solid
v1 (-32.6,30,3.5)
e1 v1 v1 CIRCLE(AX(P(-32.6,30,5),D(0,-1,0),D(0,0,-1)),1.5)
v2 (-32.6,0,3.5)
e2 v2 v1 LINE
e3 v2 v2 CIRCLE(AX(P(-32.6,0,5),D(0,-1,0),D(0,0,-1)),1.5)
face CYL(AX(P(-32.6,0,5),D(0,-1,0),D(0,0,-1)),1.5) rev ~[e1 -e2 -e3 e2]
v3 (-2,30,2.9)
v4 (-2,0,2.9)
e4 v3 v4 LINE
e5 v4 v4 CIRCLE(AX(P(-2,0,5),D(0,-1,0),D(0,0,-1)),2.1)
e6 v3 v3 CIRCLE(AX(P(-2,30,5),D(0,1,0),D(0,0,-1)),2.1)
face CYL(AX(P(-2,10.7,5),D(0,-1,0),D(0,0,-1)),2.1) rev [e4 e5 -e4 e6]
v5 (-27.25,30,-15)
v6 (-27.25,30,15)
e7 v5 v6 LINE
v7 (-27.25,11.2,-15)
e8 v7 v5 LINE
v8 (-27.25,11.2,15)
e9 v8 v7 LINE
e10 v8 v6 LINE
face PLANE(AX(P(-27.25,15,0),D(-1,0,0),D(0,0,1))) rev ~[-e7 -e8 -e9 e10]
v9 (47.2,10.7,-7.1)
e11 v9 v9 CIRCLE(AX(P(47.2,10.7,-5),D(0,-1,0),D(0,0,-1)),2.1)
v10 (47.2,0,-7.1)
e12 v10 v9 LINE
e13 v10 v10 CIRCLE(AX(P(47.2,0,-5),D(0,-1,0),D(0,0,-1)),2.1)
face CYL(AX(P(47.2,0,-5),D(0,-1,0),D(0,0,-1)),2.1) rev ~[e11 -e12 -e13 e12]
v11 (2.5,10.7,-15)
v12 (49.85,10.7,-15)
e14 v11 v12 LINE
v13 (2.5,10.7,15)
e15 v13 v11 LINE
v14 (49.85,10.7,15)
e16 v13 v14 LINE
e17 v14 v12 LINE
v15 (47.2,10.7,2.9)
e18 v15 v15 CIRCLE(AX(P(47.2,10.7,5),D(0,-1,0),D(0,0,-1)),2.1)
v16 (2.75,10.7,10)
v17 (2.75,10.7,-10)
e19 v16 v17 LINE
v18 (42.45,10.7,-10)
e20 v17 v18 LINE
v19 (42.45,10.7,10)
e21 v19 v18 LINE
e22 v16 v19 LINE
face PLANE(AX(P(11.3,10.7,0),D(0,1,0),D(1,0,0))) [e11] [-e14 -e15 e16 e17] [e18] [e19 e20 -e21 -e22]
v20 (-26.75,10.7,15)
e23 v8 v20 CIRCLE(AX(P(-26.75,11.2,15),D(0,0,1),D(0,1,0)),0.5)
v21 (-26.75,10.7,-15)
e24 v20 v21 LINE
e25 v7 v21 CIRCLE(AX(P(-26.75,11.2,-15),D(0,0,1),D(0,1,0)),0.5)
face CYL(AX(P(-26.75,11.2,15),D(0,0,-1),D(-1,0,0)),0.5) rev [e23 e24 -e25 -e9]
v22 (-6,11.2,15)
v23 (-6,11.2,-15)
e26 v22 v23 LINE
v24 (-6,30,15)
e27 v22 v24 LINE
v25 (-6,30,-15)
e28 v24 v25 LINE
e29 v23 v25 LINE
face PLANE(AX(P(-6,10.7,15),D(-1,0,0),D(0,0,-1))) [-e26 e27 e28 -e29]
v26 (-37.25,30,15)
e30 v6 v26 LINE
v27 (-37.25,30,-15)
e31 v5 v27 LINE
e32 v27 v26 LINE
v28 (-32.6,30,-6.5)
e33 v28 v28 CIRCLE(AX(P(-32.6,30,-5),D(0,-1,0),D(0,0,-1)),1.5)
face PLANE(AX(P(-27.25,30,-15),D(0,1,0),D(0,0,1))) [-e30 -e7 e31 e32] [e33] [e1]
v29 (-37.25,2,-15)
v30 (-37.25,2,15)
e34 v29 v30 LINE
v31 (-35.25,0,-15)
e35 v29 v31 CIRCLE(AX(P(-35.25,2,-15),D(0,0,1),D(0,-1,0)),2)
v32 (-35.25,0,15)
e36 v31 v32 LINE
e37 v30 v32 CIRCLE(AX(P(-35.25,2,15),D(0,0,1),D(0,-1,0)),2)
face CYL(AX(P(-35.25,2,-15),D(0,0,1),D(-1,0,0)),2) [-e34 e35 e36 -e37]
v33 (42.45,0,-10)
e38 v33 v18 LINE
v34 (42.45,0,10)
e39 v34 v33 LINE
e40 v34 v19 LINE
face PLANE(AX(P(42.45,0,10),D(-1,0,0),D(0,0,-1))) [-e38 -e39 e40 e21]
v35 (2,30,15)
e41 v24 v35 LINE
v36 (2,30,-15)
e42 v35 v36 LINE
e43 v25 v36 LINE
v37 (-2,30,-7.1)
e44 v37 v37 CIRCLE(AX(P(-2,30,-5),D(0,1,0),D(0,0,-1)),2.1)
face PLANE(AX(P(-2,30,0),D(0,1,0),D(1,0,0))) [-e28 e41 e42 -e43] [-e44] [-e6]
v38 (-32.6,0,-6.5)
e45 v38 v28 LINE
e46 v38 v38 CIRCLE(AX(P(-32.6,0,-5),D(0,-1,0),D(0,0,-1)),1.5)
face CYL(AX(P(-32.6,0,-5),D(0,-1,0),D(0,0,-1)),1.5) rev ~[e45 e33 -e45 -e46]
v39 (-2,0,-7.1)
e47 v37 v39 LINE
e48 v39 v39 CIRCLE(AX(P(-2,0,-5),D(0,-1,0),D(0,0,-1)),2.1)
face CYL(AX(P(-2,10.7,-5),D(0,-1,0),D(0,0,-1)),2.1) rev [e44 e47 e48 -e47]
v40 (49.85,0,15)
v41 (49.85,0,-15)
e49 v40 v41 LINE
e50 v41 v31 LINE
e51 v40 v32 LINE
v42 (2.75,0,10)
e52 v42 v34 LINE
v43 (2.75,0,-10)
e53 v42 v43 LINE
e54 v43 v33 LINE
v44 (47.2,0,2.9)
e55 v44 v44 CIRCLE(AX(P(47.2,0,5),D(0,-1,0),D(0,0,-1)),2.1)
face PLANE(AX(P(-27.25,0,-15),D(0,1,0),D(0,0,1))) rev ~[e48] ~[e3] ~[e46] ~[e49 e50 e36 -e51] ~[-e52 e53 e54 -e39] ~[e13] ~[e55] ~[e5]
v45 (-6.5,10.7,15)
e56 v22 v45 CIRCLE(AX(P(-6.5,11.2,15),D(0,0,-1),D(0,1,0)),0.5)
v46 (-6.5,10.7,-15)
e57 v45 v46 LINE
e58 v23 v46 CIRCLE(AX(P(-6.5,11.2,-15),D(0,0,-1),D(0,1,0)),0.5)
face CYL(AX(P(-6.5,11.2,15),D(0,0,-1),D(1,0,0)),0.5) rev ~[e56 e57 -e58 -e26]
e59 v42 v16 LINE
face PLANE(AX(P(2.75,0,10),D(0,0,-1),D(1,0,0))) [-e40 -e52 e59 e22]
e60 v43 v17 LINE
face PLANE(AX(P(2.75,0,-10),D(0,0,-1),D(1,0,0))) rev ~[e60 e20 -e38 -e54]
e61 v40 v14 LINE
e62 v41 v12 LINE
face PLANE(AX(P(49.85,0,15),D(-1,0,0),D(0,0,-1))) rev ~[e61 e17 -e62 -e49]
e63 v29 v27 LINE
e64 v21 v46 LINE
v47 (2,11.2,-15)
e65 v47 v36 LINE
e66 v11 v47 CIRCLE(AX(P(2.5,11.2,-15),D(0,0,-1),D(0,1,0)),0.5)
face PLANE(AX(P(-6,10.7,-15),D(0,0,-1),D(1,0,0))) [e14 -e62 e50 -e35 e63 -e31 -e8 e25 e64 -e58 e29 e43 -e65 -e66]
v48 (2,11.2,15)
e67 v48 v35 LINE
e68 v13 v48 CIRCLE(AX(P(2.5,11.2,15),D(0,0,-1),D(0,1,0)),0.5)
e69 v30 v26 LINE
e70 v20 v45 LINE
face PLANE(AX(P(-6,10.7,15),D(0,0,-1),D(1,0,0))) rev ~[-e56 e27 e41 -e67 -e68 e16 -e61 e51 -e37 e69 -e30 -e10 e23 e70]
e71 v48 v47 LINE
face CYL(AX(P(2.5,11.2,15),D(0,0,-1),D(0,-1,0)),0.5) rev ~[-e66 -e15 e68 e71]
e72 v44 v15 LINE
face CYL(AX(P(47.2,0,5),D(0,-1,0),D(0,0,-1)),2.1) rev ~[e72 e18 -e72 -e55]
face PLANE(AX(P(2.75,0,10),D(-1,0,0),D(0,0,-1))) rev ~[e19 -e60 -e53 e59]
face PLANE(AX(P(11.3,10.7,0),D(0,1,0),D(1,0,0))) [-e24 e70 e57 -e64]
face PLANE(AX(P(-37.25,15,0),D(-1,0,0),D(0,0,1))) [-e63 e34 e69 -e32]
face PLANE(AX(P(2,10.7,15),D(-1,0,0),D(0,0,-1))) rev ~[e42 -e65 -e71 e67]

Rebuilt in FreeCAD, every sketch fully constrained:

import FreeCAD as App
import Part
import Sketcher
Q = App.Units.Quantity


def edges_at(feature, points):
    """Names of the edges that pass closest to the given points."""
    edges = feature.Shape.Edges
    near = lambda p: min(range(len(edges)), key=lambda i: edges[i].distToShape(Part.Vertex(*p))[0])
    return sorted({f"Edge{near(p) + 1}" for p in points})

doc = App.newDocument("Part")
body = doc.addObject("PartDesign::Body", "Body")

# Sketch on XZ plane
sketch1 = body.newObject("Sketcher::SketchObject", "Sketch")
sketch1.AttachmentSupport = (doc.getObject("XZ_Plane"), [""])
sketch1.MapMode = "FlatFace"
sketch1.addGeometry(Part.LineSegment(App.Vector(-27, -15, 0), App.Vector(-27, 15, 0)), False)
sketch1.addGeometry(Part.LineSegment(App.Vector(-27, 15, 0), App.Vector(50, 15, 0)), False)
sketch1.addGeometry(Part.LineSegment(App.Vector(50, 15, 0), App.Vector(50, -15, 0)), False)
sketch1.addGeometry(Part.LineSegment(App.Vector(50, -15, 0), App.Vector(-27, -15, 0)), False)
sketch1.addGeometry(Part.LineSegment(App.Vector(42, 10, 0), App.Vector(3, 10, 0)), False)
sketch1.addGeometry(Part.LineSegment(App.Vector(3, 10, 0), App.Vector(3, -10, 0)), False)
sketch1.addGeometry(Part.LineSegment(App.Vector(3, -10, 0), App.Vector(42, -10, 0)), False)
sketch1.addGeometry(Part.LineSegment(App.Vector(42, -10, 0), App.Vector(42, 10, 0)), False)
sketch1.addConstraint(Sketcher.Constraint("Coincident", 0, 2, 1, 1))
sketch1.addConstraint(Sketcher.Constraint("Coincident", 1, 2, 2, 1))
sketch1.addConstraint(Sketcher.Constraint("Coincident", 2, 2, 3, 1))
sketch1.addConstraint(Sketcher.Constraint("Coincident", 3, 2, 0, 1))
sketch1.addConstraint(Sketcher.Constraint("Coincident", 4, 2, 5, 1))
sketch1.addConstraint(Sketcher.Constraint("Coincident", 5, 2, 6, 1))
sketch1.addConstraint(Sketcher.Constraint("Coincident", 6, 2, 7, 1))
sketch1.addConstraint(Sketcher.Constraint("Coincident", 7, 2, 4, 1))
sketch1.addConstraint(Sketcher.Constraint("Vertical", 0))
sketch1.addConstraint(Sketcher.Constraint("Horizontal", 1))
sketch1.addConstraint(Sketcher.Constraint("Vertical", 2))
sketch1.addConstraint(Sketcher.Constraint("Horizontal", 3))
sketch1.addConstraint(Sketcher.Constraint("Horizontal", 4))
sketch1.addConstraint(Sketcher.Constraint("Vertical", 5))
sketch1.addConstraint(Sketcher.Constraint("Horizontal", 6))
sketch1.addConstraint(Sketcher.Constraint("Vertical", 7))
sketch1.addConstraint(Sketcher.Constraint("DistanceY", 0, 1, 0, 2, Q("30 mm")))
sketch1.addConstraint(Sketcher.Constraint("DistanceY", 5, 2, 5, 1, Q("20 mm")))
sketch1.addConstraint(Sketcher.Constraint("DistanceX", 1, 1, 1, 2, Q("77.1 mm")))
sketch1.addConstraint(Sketcher.Constraint("DistanceX", 4, 2, 4, 1, Q("39.7 mm")))
sketch1.addConstraint(Sketcher.Constraint("DistanceY", -1, 1, 0, 2, Q("15 mm")))
sketch1.addConstraint(Sketcher.Constraint("DistanceY", -1, 1, 4, 2, Q("10 mm")))
sketch1.addConstraint(Sketcher.Constraint("DistanceX", 0, 2, 4, 2, Q("30 mm")))
sketch1.addConstraint(Sketcher.Constraint("DistanceX", 0, 2, -1, 1, Q("27.25 mm")))
pad1 = body.newObject("PartDesign::Pad", "Pad")
pad1.Profile = sketch1
pad1.Length = 10.7
pad1.Reversed = True

# Sketch on YZ plane
sketch2 = body.newObject("Sketcher::SketchObject", "Sketch001")
sketch2.AttachmentSupport = (doc.getObject("YZ_Plane"), [""])
sketch2.MapMode = "FlatFace"
sketch2.AttachmentOffset = App.Placement(App.Vector(0, 0, -27.25), App.Rotation())
sketch2.addGeometry(Part.LineSegment(App.Vector(30, -15, 0), App.Vector(0, -15, 0)), False)
sketch2.addGeometry(Part.LineSegment(App.Vector(0, -15, 0), App.Vector(0, 15, 0)), False)
sketch2.addGeometry(Part.LineSegment(App.Vector(0, 15, 0), App.Vector(30, 15, 0)), False)
sketch2.addGeometry(Part.LineSegment(App.Vector(30, 15, 0), App.Vector(30, -15, 0)), False)
sketch2.addConstraint(Sketcher.Constraint("Coincident", 0, 2, 1, 1))
sketch2.addConstraint(Sketcher.Constraint("Coincident", 1, 2, 2, 1))
sketch2.addConstraint(Sketcher.Constraint("Coincident", 2, 2, 3, 1))
sketch2.addConstraint(Sketcher.Constraint("Coincident", 3, 2, 0, 1))
sketch2.addConstraint(Sketcher.Constraint("Horizontal", 0))
sketch2.addConstraint(Sketcher.Constraint("Vertical", 1))
sketch2.addConstraint(Sketcher.Constraint("Horizontal", 2))
sketch2.addConstraint(Sketcher.Constraint("Vertical", 3))
sketch2.addConstraint(Sketcher.Constraint("Symmetric", 0, 2, 1, 2, -1, 1))
sketch2.addConstraint(Sketcher.Constraint("Equal", 2, 1))
sketch2.addConstraint(Sketcher.Constraint("DistanceX", 0, 2, 0, 1, Q("30 mm")))
pad2 = body.newObject("PartDesign::Pad", "Pad001")
pad2.Profile = sketch2
pad2.Length = 10
pad2.Reversed = True

# Sketch on XZ plane
sketch3 = body.newObject("Sketcher::SketchObject", "Sketch002")
sketch3.AttachmentSupport = (doc.getObject("XZ_Plane"), [""])
sketch3.MapMode = "FlatFace"
sketch3.addGeometry(Part.Circle(App.Vector(-2, -5, 0), App.Vector(0, 0, 1), 2.1), False)
sketch3.addConstraint(Sketcher.Constraint("Diameter", 0, Q("4.2 mm")))
sketch3.addConstraint(Sketcher.Constraint("DistanceX", 0, 3, -1, 1, Q("2 mm")))
sketch3.addConstraint(Sketcher.Constraint("DistanceY", 0, 3, -1, 1, Q("5 mm")))
pocket1 = body.newObject("PartDesign::Pocket", "Pocket")
pocket1.Profile = sketch3
pocket1.Type = "UpToFirst"

# Sketch on XZ plane
sketch4 = body.newObject("Sketcher::SketchObject", "Sketch003")
sketch4.AttachmentSupport = (doc.getObject("XZ_Plane"), [""])
sketch4.MapMode = "FlatFace"
sketch4.addGeometry(Part.Circle(App.Vector(-2, 5, 0), App.Vector(0, 0, 1), 2.1), False)
sketch4.addConstraint(Sketcher.Constraint("Diameter", 0, Q("4.2 mm")))
sketch4.addConstraint(Sketcher.Constraint("DistanceX", 0, 3, -1, 1, Q("2 mm")))
sketch4.addConstraint(Sketcher.Constraint("DistanceY", -1, 1, 0, 3, Q("5 mm")))
pocket2 = body.newObject("PartDesign::Pocket", "Pocket001")
pocket2.Profile = sketch4
pocket2.Type = "UpToFirst"

# Sketch on XZ plane
sketch5 = body.newObject("Sketcher::SketchObject", "Sketch004")
sketch5.AttachmentSupport = (doc.getObject("XZ_Plane"), [""])
sketch5.MapMode = "FlatFace"
sketch5.addGeometry(Part.Circle(App.Vector(47.2, -5, 0), App.Vector(0, 0, 1), 2.1), False)
sketch5.addConstraint(Sketcher.Constraint("Diameter", 0, Q("4.2 mm")))
sketch5.addConstraint(Sketcher.Constraint("DistanceY", 0, 3, -1, 1, Q("5 mm")))
sketch5.addConstraint(Sketcher.Constraint("DistanceX", -1, 1, 0, 3, Q("47.2 mm")))
pocket3 = body.newObject("PartDesign::Pocket", "Pocket002")
pocket3.Profile = sketch5
pocket3.Type = "UpToFirst"

# Sketch on XZ plane
sketch6 = body.newObject("Sketcher::SketchObject", "Sketch005")
sketch6.AttachmentSupport = (doc.getObject("XZ_Plane"), [""])
sketch6.MapMode = "FlatFace"
sketch6.addGeometry(Part.Circle(App.Vector(47.2, 5, 0), App.Vector(0, 0, 1), 2.1), False)
sketch6.addConstraint(Sketcher.Constraint("Diameter", 0, Q("4.2 mm")))
sketch6.addConstraint(Sketcher.Constraint("DistanceY", -1, 1, 0, 3, Q("5 mm")))
sketch6.addConstraint(Sketcher.Constraint("DistanceX", -1, 1, 0, 3, Q("47.2 mm")))
pocket4 = body.newObject("PartDesign::Pocket", "Pocket003")
pocket4.Profile = sketch6
pocket4.Type = "UpToFirst"
doc.recompute()

fillet = body.newObject("PartDesign::Fillet", "Fillet")
fillet.Base = (pocket4, edges_at(pocket4, [(-37.25, 0, 0)]))
fillet.Radius = 2
doc.recompute()

fillet2 = body.newObject("PartDesign::Fillet", "Fillet001")
fillet2.Base = (fillet, edges_at(fillet, [(-27.25, 10.7, 0)]))
fillet2.Radius = 0.5

# Sketch on XZ plane
sketch7 = body.newObject("Sketcher::SketchObject", "Sketch006")
sketch7.AttachmentSupport = (doc.getObject("XZ_Plane"), [""])
sketch7.MapMode = "FlatFace"
sketch7.addGeometry(Part.Circle(App.Vector(-32.6, 5, 0), App.Vector(0, 0, 1), 1.5), False)
sketch7.addConstraint(Sketcher.Constraint("Diameter", 0, Q("3 mm")))
sketch7.addConstraint(Sketcher.Constraint("DistanceY", -1, 1, 0, 3, Q("5 mm")))
sketch7.addConstraint(Sketcher.Constraint("DistanceX", 0, 3, -1, 1, Q("32.6 mm")))
pocket5 = body.newObject("PartDesign::Pocket", "Pocket004")
pocket5.Profile = sketch7
pocket5.Type = "UpToFirst"

# Sketch on XZ plane
sketch8 = body.newObject("Sketcher::SketchObject", "Sketch007")
sketch8.AttachmentSupport = (doc.getObject("XZ_Plane"), [""])
sketch8.MapMode = "FlatFace"
sketch8.addGeometry(Part.Circle(App.Vector(-32.6, -5, 0), App.Vector(0, 0, 1), 1.5), False)
sketch8.addConstraint(Sketcher.Constraint("Diameter", 0, Q("3 mm")))
sketch8.addConstraint(Sketcher.Constraint("DistanceY", 0, 3, -1, 1, Q("5 mm")))
sketch8.addConstraint(Sketcher.Constraint("DistanceX", 0, 3, -1, 1, Q("32.6 mm")))
pocket6 = body.newObject("PartDesign::Pocket", "Pocket005")
pocket6.Profile = sketch8
pocket6.Type = "UpToFirst"

# Sketch on XZ plane
sketch9 = body.newObject("Sketcher::SketchObject", "Sketch008")
sketch9.AttachmentSupport = (doc.getObject("XZ_Plane"), [""])
sketch9.MapMode = "FlatFace"
sketch9.AttachmentOffset = App.Placement(App.Vector(0, 0, -10.7), App.Rotation())
sketch9.addGeometry(Part.LineSegment(App.Vector(-6, -15, 0), App.Vector(-6, 15, 0)), False)
sketch9.addGeometry(Part.LineSegment(App.Vector(-6, 15, 0), App.Vector(2, 15, 0)), False)
sketch9.addGeometry(Part.LineSegment(App.Vector(2, 15, 0), App.Vector(2, -15, 0)), False)
sketch9.addGeometry(Part.LineSegment(App.Vector(2, -15, 0), App.Vector(-6, -15, 0)), False)
sketch9.addGeometry(Part.Circle(App.Vector(-2, 5, 0), App.Vector(0, 0, 1), 2.1), False)
sketch9.addGeometry(Part.Circle(App.Vector(-2, -5, 0), App.Vector(0, 0, 1), 2.1), False)
sketch9.addConstraint(Sketcher.Constraint("Coincident", 0, 2, 1, 1))
sketch9.addConstraint(Sketcher.Constraint("Coincident", 1, 2, 2, 1))
sketch9.addConstraint(Sketcher.Constraint("Coincident", 2, 2, 3, 1))
sketch9.addConstraint(Sketcher.Constraint("Coincident", 3, 2, 0, 1))
sketch9.addConstraint(Sketcher.Constraint("Vertical", 0))
sketch9.addConstraint(Sketcher.Constraint("Horizontal", 1))
sketch9.addConstraint(Sketcher.Constraint("Vertical", 2))
sketch9.addConstraint(Sketcher.Constraint("Horizontal", 3))
sketch9.addConstraint(Sketcher.Constraint("Equal", 4, 5))
sketch9.addConstraint(Sketcher.Constraint("Symmetric", 4, 3, 5, 3, -1))
sketch9.addConstraint(Sketcher.Constraint("Diameter", 4, Q("4.2 mm")))
sketch9.addConstraint(Sketcher.Constraint("DistanceX", 1, 1, 1, 2, Q("8 mm")))
sketch9.addConstraint(Sketcher.Constraint("DistanceY", 0, 1, 0, 2, Q("30 mm")))
sketch9.addConstraint(Sketcher.Constraint("DistanceX", 4, 3, -1, 1, Q("2 mm")))
sketch9.addConstraint(Sketcher.Constraint("DistanceY", -1, 1, 4, 3, Q("5 mm")))
sketch9.addConstraint(Sketcher.Constraint("DistanceX", 0, 2, -1, 1, Q("6 mm")))
sketch9.addConstraint(Sketcher.Constraint("DistanceY", -1, 1, 0, 2, Q("15 mm")))
pad3 = body.newObject("PartDesign::Pad", "Pad002")
pad3.Profile = sketch9
pad3.Length = 19.3
pad3.Reversed = True
doc.recompute()

fillet3 = body.newObject("PartDesign::Fillet", "Fillet002")
fillet3.Base = (pad3, edges_at(pad3, [(-6, 10.7, 0), (2, 10.7, 0)]))
fillet3.Radius = 0.5

doc.recompute()
